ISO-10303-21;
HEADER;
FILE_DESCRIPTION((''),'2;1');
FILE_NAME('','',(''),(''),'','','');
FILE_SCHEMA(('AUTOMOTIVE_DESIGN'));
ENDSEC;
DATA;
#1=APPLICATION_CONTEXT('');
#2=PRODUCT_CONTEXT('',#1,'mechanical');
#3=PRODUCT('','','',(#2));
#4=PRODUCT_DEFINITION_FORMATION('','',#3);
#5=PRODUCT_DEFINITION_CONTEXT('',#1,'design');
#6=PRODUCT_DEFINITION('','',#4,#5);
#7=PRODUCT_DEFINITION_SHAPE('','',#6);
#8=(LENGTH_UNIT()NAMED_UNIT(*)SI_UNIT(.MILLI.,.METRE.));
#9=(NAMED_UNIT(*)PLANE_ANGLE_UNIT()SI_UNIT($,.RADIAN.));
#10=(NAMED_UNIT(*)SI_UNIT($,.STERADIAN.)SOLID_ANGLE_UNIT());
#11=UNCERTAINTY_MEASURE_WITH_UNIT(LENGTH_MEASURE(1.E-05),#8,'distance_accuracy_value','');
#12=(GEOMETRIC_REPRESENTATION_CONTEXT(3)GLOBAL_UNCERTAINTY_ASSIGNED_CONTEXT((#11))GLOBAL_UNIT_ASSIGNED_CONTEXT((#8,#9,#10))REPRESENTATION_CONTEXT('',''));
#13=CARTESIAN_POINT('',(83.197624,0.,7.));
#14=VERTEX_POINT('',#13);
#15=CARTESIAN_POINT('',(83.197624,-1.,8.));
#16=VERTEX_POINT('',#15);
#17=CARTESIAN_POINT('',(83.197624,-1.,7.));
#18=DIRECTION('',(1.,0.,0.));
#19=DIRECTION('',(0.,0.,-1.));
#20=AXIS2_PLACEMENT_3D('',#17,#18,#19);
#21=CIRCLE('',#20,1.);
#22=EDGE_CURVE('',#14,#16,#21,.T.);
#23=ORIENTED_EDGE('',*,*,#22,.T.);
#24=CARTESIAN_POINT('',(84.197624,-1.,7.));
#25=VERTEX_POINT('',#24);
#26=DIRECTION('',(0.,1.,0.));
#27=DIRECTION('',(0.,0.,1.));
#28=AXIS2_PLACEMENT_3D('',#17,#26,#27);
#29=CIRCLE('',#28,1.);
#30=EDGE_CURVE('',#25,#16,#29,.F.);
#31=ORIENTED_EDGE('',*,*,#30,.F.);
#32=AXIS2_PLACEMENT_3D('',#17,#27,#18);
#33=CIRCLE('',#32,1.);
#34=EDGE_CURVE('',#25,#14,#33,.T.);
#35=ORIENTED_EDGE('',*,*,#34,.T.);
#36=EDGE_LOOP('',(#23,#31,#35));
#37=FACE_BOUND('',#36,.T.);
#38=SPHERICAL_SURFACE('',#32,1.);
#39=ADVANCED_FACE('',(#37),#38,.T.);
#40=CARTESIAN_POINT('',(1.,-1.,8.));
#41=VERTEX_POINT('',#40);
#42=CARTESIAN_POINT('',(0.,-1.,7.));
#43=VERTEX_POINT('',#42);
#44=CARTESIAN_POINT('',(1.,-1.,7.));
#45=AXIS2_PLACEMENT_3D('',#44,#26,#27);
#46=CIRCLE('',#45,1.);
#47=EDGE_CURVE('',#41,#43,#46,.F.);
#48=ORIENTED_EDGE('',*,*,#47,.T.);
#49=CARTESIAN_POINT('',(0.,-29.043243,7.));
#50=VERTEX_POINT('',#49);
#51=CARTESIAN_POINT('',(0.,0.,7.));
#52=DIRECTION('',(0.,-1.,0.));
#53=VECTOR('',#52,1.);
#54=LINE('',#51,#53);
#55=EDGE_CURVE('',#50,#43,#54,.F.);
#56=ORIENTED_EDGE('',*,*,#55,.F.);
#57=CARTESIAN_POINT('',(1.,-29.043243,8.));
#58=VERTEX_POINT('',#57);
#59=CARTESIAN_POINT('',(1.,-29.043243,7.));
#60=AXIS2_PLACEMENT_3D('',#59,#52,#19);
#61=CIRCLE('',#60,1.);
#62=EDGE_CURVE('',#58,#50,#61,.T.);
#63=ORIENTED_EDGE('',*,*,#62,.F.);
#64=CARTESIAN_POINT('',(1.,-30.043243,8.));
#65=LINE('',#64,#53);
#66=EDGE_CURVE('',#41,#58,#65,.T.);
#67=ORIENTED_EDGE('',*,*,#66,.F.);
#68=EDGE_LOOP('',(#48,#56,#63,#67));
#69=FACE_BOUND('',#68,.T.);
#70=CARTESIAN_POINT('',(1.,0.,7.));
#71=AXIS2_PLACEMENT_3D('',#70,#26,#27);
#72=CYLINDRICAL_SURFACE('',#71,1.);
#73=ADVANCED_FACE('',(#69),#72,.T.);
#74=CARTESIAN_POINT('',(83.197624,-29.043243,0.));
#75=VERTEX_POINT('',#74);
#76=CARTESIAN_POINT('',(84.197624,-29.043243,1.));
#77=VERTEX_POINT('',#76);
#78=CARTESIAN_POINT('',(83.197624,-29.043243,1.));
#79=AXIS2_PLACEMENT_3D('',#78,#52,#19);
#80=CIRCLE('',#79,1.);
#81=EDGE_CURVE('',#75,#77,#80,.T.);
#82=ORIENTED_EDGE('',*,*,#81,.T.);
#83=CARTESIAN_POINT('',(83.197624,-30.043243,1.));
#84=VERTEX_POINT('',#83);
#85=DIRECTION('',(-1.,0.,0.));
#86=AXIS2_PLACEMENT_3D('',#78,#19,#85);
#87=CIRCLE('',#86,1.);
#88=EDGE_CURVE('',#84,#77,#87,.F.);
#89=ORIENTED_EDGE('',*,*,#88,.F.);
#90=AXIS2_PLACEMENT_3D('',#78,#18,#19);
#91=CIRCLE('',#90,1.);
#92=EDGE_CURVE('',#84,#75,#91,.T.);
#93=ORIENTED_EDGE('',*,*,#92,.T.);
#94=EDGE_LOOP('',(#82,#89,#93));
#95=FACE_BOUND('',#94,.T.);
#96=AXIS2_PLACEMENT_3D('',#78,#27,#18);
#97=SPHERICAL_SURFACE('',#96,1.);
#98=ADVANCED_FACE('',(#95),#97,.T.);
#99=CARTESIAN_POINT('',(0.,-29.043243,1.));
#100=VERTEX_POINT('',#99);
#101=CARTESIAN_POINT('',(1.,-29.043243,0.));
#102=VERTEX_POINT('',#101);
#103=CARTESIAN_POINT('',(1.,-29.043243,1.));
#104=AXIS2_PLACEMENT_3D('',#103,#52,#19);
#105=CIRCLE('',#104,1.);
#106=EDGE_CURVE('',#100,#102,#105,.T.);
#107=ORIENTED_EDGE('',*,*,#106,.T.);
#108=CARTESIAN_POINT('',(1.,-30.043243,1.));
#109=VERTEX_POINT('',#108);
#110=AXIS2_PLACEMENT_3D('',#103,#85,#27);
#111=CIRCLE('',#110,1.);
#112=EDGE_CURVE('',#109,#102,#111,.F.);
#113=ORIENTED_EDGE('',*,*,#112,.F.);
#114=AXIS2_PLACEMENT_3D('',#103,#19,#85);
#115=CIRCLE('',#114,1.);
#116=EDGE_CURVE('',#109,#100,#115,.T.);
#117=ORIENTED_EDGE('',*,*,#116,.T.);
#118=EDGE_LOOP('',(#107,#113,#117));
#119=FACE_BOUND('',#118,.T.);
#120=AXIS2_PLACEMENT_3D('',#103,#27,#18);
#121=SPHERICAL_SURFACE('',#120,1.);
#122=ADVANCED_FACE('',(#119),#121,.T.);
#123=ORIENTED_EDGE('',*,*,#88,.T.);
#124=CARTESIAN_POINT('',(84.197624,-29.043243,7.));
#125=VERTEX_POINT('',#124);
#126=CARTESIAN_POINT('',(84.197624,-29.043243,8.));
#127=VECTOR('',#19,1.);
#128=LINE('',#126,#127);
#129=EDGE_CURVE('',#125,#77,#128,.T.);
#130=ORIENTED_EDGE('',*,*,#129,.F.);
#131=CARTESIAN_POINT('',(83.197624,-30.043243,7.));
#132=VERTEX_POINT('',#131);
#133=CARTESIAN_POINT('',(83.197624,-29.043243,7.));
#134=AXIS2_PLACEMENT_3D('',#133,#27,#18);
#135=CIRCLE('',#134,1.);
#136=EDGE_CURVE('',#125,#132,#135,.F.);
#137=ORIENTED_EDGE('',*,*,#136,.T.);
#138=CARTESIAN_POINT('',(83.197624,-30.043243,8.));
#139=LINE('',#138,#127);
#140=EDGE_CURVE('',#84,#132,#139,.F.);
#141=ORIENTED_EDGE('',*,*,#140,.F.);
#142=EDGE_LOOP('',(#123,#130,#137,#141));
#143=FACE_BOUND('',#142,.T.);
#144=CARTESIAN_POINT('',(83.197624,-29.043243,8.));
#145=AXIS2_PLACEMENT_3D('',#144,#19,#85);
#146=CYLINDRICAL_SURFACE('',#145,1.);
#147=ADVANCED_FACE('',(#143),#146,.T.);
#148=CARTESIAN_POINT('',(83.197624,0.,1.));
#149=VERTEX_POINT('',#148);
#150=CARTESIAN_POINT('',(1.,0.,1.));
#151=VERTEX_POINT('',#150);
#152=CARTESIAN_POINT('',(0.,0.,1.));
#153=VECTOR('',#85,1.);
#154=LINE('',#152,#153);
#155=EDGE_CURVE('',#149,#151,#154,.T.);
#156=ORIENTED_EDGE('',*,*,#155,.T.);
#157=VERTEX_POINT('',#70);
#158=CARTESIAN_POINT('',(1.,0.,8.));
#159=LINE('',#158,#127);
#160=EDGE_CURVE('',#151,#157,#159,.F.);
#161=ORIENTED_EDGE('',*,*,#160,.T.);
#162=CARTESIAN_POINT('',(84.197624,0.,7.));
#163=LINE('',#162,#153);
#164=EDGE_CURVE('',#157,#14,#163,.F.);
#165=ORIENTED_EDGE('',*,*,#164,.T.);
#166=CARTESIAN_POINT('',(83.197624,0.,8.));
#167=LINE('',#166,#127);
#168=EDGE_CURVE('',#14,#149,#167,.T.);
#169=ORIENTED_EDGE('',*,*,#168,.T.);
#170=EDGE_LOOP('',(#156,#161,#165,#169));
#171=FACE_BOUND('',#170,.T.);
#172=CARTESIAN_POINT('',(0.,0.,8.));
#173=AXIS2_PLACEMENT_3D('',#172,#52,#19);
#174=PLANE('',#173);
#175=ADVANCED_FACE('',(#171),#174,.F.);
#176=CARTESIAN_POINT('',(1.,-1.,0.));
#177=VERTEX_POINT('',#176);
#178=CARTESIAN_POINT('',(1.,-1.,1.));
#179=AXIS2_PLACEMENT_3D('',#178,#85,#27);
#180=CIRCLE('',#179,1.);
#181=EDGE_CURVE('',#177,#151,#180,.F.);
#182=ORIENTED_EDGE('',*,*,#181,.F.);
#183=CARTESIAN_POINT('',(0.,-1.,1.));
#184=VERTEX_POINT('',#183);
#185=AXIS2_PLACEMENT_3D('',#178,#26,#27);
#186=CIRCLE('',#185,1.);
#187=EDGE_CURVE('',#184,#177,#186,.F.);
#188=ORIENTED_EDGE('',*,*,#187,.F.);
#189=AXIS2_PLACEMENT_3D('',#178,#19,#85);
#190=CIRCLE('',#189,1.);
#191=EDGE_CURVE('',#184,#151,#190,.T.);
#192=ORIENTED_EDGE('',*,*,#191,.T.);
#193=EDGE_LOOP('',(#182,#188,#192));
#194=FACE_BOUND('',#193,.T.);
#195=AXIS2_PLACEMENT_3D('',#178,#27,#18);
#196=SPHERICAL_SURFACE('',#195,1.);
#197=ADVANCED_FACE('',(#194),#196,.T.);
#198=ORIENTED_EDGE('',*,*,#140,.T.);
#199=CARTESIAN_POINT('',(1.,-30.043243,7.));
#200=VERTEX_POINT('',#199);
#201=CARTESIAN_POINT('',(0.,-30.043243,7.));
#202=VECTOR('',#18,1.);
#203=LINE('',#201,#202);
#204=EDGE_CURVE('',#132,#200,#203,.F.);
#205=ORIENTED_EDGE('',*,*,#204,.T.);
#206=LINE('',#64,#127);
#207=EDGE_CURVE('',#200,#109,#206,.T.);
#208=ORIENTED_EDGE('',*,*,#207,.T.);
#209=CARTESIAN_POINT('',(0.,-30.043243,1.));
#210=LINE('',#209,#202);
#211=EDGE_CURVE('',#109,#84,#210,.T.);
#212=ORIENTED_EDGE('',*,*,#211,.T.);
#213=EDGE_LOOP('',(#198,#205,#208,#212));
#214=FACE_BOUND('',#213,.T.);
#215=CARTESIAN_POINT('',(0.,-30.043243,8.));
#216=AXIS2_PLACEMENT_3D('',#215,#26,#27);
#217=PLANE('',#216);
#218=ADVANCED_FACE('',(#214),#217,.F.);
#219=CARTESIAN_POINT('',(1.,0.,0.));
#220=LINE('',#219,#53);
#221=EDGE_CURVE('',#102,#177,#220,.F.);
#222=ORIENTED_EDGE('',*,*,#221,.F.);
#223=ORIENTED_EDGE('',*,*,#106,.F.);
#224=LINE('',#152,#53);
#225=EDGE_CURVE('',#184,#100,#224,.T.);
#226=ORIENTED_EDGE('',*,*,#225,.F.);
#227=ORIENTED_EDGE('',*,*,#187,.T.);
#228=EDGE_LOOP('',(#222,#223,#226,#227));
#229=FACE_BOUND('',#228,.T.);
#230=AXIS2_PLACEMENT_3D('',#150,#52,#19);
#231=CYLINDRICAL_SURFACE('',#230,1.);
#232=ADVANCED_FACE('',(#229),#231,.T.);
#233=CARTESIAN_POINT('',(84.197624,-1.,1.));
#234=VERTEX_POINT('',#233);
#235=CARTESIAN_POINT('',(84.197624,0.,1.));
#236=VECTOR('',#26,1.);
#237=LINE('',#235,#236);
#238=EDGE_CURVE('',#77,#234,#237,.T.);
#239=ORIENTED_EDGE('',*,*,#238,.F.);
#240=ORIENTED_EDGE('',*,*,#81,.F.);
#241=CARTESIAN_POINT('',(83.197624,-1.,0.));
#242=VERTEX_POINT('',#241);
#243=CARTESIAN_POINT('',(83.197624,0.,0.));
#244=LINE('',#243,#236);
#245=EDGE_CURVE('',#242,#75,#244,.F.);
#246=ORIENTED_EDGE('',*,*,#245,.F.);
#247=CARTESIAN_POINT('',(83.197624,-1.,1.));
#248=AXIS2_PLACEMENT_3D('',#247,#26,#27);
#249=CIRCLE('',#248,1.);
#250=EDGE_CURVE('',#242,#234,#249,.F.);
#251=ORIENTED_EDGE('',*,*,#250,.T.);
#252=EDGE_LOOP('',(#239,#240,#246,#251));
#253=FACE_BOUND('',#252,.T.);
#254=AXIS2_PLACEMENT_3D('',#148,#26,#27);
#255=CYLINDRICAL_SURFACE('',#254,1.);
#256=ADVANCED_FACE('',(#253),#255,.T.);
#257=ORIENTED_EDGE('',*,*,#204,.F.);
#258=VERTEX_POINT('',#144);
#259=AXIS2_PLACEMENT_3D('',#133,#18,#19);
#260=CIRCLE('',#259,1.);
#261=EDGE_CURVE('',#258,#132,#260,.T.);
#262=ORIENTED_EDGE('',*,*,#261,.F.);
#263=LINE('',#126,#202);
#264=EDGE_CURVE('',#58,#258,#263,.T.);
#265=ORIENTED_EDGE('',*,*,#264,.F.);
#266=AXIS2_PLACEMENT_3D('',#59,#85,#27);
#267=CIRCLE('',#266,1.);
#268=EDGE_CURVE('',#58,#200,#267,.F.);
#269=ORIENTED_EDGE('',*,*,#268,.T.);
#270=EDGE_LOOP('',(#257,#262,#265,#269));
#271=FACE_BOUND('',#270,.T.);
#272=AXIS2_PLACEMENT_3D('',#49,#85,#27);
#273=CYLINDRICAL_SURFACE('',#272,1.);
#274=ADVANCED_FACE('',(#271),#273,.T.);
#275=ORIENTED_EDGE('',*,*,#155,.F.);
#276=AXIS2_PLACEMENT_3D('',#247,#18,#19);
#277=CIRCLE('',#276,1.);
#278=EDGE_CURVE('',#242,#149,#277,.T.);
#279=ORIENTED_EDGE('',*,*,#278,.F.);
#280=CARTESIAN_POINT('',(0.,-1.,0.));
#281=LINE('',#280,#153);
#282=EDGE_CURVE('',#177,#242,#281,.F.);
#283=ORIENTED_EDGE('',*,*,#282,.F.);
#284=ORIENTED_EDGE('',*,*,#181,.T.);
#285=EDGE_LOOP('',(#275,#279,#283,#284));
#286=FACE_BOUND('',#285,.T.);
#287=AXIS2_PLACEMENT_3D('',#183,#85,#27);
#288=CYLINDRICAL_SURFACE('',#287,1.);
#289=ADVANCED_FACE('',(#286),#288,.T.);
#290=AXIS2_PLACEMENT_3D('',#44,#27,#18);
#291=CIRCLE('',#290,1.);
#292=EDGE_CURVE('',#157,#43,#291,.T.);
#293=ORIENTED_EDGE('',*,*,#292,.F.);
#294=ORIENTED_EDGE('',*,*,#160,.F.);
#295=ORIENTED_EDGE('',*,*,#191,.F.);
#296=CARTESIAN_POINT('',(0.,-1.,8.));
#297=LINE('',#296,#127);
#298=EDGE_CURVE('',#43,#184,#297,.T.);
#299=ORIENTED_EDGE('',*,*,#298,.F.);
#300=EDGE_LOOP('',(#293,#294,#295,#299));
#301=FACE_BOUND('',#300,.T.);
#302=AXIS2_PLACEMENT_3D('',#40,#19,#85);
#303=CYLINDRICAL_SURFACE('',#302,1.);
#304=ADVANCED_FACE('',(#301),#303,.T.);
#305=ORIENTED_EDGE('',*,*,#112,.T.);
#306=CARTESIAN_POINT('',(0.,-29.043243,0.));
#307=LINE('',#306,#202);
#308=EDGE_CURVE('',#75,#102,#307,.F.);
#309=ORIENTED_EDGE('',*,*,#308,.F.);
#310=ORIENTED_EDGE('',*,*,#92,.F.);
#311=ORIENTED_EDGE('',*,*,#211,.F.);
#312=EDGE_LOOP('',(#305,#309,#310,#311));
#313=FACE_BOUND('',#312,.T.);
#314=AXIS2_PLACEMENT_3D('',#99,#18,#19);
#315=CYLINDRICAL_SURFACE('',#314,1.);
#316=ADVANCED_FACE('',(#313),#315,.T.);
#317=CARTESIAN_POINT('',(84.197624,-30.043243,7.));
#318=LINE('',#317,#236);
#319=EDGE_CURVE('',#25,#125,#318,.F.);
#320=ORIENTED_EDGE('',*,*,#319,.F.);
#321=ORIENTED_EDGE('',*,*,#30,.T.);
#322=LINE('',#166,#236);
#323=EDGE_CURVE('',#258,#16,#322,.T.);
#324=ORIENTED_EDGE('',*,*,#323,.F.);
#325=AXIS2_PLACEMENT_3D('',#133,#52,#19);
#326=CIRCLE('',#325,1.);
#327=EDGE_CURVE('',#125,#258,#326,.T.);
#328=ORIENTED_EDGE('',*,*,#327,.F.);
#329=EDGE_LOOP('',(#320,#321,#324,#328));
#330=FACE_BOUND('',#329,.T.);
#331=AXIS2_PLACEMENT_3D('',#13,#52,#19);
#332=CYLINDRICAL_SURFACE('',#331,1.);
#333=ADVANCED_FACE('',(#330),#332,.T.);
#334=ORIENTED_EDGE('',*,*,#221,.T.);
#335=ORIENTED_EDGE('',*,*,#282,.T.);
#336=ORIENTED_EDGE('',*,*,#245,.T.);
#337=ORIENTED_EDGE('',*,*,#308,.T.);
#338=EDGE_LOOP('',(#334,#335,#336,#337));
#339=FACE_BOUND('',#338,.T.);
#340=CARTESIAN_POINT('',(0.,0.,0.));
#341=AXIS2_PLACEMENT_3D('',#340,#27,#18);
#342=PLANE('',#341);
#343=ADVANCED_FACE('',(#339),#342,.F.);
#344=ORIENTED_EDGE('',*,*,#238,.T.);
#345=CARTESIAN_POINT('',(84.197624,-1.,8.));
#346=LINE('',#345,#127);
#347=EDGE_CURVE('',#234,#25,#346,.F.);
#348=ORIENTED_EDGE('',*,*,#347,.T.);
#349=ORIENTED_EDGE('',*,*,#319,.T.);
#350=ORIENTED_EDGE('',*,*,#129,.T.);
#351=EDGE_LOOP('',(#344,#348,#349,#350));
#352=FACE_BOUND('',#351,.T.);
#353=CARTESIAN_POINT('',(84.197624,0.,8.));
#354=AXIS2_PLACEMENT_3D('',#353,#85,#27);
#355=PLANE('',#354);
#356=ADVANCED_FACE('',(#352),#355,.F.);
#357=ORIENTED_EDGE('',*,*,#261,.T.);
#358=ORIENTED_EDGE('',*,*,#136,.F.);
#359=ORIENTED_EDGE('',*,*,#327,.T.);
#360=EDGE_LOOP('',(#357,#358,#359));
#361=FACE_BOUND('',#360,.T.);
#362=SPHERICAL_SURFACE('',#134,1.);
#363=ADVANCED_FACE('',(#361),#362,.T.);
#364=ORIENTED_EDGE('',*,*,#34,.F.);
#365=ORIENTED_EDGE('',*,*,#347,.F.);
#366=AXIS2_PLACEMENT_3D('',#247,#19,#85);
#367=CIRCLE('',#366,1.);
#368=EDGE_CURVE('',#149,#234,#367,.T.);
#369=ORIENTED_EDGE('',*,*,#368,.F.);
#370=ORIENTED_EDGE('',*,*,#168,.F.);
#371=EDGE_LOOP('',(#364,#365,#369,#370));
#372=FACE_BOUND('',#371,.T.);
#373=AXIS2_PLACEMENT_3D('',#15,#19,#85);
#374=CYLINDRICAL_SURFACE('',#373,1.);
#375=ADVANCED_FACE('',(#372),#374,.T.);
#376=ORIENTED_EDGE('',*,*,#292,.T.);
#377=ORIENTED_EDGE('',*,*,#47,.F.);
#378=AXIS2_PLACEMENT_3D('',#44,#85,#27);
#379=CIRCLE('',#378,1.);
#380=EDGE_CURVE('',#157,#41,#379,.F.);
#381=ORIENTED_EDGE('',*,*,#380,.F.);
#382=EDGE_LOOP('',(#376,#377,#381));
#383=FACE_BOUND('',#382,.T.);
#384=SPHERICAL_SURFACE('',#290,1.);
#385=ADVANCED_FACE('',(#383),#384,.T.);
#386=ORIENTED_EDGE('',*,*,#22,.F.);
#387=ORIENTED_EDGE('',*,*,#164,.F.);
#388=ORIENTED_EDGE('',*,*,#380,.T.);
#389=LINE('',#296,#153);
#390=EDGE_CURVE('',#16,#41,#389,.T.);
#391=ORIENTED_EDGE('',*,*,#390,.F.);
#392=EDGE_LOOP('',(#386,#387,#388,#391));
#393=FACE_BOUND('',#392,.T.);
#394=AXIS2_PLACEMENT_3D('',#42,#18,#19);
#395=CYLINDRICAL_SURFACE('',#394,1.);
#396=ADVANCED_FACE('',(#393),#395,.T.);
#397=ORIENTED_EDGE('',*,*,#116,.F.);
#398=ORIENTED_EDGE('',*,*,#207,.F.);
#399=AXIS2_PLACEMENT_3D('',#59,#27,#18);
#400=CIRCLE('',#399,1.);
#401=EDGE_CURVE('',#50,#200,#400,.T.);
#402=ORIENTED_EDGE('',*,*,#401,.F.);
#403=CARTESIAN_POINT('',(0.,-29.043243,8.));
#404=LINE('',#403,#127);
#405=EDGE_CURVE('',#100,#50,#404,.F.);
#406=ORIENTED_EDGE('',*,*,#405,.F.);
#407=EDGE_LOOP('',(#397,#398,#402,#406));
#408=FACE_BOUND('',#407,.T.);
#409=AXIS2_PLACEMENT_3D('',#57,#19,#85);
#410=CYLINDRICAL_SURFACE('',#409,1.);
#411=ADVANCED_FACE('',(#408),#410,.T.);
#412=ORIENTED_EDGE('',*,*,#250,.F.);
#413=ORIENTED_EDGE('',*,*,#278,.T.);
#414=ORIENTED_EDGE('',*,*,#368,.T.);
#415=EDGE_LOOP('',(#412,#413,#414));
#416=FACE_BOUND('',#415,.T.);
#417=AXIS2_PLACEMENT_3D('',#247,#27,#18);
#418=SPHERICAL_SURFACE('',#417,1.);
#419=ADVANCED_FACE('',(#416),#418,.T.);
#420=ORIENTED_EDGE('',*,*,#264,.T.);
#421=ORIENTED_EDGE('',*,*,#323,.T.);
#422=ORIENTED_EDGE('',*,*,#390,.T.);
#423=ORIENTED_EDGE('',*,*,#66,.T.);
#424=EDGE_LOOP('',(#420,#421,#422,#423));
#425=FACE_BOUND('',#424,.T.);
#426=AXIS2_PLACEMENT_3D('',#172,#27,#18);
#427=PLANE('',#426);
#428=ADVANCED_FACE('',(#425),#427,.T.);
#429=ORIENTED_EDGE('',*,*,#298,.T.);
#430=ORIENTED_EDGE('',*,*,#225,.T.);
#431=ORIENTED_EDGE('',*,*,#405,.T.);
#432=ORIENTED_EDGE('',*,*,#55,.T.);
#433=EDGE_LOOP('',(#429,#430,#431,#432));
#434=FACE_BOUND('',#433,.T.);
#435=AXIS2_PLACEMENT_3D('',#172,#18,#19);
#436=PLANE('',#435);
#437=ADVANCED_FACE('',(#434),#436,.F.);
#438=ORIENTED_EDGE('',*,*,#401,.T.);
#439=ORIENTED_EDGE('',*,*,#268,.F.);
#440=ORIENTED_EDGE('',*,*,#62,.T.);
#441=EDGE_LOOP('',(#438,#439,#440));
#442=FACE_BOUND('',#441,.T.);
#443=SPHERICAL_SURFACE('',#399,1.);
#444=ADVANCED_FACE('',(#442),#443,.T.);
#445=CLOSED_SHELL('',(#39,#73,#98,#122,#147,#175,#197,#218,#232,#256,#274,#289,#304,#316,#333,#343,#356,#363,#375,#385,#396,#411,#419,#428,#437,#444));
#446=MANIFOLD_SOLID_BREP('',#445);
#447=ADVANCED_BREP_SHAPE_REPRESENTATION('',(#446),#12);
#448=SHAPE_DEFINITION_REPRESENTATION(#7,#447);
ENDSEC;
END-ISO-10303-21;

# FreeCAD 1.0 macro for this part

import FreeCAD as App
import Part
import Sketcher
Q = App.Units.Quantity

doc = App.newDocument("Part")
body = doc.addObject("PartDesign::Body", "Body")

sketch1 = doc.addObject("Sketcher::SketchObject", "Sketch")
body.addObject(sketch1)
sketch1.AttachmentSupport = (doc.XY_Plane, [""])
sketch1.MapMode = "FlatFace"
sketch1.addGeometry([
    Part.LineSegment(App.Vector(0, 0, 0), App.Vector(0, -30, 0)),
    Part.LineSegment(App.Vector(0, -30, 0), App.Vector(84, -30, 0)),
    Part.LineSegment(App.Vector(84, -30, 0), App.Vector(84, 0, 0)),
    Part.LineSegment(App.Vector(84, 0, 0), App.Vector(0, 0, 0)),
], False)
sketch1.addConstraint([
    Sketcher.Constraint("Coincident", 0, 2, 1, 1),
    Sketcher.Constraint("Coincident", 1, 2, 2, 1),
    Sketcher.Constraint("Coincident", 2, 2, 3, 1),
    Sketcher.Constraint("Coincident", 3, 2, 0, 1),
    Sketcher.Constraint("Vertical", 0),
    Sketcher.Constraint("Horizontal", 1),
    Sketcher.Constraint("Vertical", 2),
    Sketcher.Constraint("Horizontal", 3),
    Sketcher.Constraint("Coincident", 3, 2, -1, 1),
    Sketcher.Constraint("DistanceX", 1, 1, 1, 2, Q("84.197624 mm")),
    Sketcher.Constraint("DistanceY", 0, 2, 0, 1, Q("30.043243 mm")),
])
pad1 = doc.addObject("PartDesign::Pad", "Pad")
body.addObject(pad1)
pad1.Profile = sketch1
pad1.Length = 8
doc.recompute()

fillet = doc.addObject("PartDesign::Fillet", "Fillet")
body.addObject(fillet)
fillet.Base = (pad1, ["Edge1"])
fillet.UseAllEdges = True
fillet.Radius = 1

doc.recompute()
